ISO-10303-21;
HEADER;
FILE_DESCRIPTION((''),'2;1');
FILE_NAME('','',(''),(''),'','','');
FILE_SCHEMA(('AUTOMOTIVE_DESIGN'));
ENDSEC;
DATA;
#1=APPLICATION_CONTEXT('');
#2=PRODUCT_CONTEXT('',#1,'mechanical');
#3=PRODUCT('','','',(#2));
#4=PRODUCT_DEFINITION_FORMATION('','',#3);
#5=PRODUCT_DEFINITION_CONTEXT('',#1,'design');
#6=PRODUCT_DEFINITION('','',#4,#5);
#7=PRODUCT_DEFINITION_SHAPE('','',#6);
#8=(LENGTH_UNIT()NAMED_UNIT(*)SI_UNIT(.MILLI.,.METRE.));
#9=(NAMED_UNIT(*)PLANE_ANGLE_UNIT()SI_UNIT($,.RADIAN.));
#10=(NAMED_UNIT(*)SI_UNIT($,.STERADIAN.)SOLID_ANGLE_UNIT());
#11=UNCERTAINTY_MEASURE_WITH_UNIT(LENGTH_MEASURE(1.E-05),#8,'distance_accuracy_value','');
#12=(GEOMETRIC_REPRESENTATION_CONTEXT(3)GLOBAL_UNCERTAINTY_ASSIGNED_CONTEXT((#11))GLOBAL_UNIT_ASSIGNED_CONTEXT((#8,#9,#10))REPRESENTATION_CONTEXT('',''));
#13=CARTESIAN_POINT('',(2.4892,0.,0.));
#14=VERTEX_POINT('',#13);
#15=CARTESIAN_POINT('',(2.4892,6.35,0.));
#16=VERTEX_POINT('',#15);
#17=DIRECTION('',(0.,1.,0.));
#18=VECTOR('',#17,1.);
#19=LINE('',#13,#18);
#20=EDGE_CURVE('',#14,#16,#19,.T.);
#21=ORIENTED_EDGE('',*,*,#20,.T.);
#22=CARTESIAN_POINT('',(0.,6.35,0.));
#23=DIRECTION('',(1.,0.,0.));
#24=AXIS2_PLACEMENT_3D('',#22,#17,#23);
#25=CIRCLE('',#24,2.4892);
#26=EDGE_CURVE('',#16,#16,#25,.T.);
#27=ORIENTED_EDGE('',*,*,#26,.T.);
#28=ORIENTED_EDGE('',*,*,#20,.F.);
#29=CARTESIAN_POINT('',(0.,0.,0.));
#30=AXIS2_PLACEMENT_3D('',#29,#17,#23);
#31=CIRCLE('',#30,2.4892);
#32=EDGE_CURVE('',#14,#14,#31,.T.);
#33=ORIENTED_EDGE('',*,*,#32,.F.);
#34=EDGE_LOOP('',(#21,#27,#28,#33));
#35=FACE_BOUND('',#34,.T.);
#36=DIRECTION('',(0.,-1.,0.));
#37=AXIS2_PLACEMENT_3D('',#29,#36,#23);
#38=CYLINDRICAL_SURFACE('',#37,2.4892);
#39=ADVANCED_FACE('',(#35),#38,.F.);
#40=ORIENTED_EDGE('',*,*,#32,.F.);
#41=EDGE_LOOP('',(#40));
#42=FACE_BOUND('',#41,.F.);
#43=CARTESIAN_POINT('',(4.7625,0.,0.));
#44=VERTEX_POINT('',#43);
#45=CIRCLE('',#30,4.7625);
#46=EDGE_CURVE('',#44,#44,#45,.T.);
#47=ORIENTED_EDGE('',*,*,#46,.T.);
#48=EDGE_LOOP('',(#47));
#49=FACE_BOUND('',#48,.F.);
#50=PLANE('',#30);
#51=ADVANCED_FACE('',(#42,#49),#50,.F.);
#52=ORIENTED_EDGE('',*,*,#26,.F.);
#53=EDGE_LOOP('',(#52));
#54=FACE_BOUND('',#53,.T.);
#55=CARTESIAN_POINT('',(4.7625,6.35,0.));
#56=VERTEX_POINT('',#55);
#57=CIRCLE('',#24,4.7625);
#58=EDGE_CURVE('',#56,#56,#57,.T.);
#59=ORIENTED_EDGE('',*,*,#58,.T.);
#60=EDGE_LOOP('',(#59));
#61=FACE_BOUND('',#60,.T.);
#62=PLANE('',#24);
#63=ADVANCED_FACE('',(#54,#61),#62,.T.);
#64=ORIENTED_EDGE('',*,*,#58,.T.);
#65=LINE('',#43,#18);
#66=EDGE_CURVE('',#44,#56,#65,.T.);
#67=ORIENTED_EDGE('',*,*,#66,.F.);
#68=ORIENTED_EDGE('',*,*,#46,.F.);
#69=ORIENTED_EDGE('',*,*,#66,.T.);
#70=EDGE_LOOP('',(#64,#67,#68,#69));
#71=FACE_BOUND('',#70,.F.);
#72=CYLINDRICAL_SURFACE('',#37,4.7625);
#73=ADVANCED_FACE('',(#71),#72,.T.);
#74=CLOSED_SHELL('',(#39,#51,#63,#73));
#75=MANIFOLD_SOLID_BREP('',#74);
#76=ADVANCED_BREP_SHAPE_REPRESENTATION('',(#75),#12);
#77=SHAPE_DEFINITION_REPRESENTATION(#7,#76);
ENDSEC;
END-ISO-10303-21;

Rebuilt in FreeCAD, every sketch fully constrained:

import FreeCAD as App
import Part
import Sketcher
Q = App.Units.Quantity

doc = App.newDocument("Part")
params = doc.addObject("Spreadsheet::Sheet", "Params")
for row, (alias, value) in enumerate([
    ("sketch1_diameter", "0.375 in"),
    ("sketch1_diameter2", "0.196 in"),
    ("pad1_length", "0.25 in"),
], start=1):
    params.set(f"A{row}", alias)
    params.set(f"B{row}", "=" + value)
    params.setAlias(f"B{row}", alias)

body = doc.addObject("PartDesign::Body", "Body")

sketch1 = doc.addObject("Sketcher::SketchObject", "Sketch")
body.addObject(sketch1)
sketch1.AttachmentSupport = (doc.XZ_Plane, [""])
sketch1.MapMode = "FlatFace"
sketch1.addGeometry([
    Part.Circle(App.Vector(0, 0, 0), App.Vector(0, 0, 1), 4.8),
    Part.Circle(App.Vector(0, 0, 0), App.Vector(0, 0, 1), 2.5),
], False)
sketch1.addConstraint([
    Sketcher.Constraint("Coincident", 0, 3, -1, 1),
    Sketcher.Constraint("Coincident", 1, 3, -1, 1),
    Sketcher.Constraint("Diameter", 0, Q("0.375 in")),
    Sketcher.Constraint("Diameter", 1, Q("0.196 in")),
])
sketch1.setExpression("Constraints[2]", "Params.sketch1_diameter")
sketch1.setExpression("Constraints[3]", "Params.sketch1_diameter2")
pad1 = doc.addObject("PartDesign::Pad", "Pad")
body.addObject(pad1)
pad1.Profile = sketch1
pad1.setExpression("Length", "Params.pad1_length")
pad1.Reversed = True

doc.recompute()
